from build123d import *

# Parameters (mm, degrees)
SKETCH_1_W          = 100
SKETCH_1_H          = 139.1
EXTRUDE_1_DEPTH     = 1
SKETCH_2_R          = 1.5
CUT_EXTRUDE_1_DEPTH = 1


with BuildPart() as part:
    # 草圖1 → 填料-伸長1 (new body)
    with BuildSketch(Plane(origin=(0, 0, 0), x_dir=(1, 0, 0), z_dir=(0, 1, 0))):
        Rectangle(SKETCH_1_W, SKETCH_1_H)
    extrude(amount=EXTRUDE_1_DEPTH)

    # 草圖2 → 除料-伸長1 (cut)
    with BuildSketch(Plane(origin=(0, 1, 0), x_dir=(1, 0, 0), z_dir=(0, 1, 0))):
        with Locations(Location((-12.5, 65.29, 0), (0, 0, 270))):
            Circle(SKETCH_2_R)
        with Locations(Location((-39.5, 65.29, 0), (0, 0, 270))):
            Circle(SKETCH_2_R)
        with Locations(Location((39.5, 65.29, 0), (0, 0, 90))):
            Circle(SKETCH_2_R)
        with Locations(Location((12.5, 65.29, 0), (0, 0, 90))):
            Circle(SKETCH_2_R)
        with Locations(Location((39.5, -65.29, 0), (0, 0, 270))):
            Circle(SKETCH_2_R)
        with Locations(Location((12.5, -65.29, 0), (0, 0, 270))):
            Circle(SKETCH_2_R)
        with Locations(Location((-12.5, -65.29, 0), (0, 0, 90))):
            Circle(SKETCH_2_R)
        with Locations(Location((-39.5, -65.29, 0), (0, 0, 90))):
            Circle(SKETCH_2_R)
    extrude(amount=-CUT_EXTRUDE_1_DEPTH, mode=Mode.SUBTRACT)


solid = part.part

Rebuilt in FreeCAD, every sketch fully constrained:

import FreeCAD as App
import Part
import Sketcher
from FreeCAD import Vector


def add_polygon(sketch, points):
    """Adds a closed chain of lines whose ends are joined by coincident constraints."""
    first, n = sketch.GeometryCount, len(points)
    for a, b in zip(points, points[1:] + points[:1]):
        sketch.addGeometry(Part.LineSegment(App.Vector(*a, 0), App.Vector(*b, 0)), False)
    for i in range(n):
        sketch.addConstraint(Sketcher.Constraint("Coincident", first + i, 2, first + (i + 1) % n, 1))

doc = App.newDocument("Part")
body = doc.addObject("PartDesign::Body", "Body")

# Sketch on XZ plane
sketch1 = body.newObject("Sketcher::SketchObject", "Sketch")
sketch1.AttachmentSupport = (doc.getObject("XZ_Plane"), [""])
sketch1.MapMode = "FlatFace"
add_polygon(sketch1, [(-50, -69.55), (-50, 69.55), (50, 69.55), (50, -69.55)])  # lines 0-3
sketch1.addConstraint([
    Sketcher.Constraint("Vertical", 0),
    Sketcher.Constraint("Horizontal", 1),
    Sketcher.Constraint("Vertical", 2),
    Sketcher.Constraint("Horizontal", 3),
    Sketcher.Constraint("Symmetric", 0, 2, 2, 2, -1, 1),
    Sketcher.Constraint("DistanceX", 1, 1, 1, 2, 100.0),
    Sketcher.Constraint("DistanceY", 0, 1, 0, 2, 139.1),
])
pad1 = body.newObject("PartDesign::Pad", "Pad")
pad1.Profile = sketch1
pad1.Length = 1
pad1.Reversed = True

# Sketch on XZ plane
sketch2 = body.newObject("Sketcher::SketchObject", "Sketch001")
sketch2.AttachmentSupport = (doc.getObject("XZ_Plane"), [""])
sketch2.MapMode = "FlatFace"
sketch2.AttachmentOffset = App.Placement(Vector(0, 0, -1), App.Rotation())
sketch2.addGeometry([
    Part.Circle(Vector(-12.5, -65.29, 0), Vector(0, 0, 1), 1.5),  # 0
    Part.Circle(Vector(-39.5, -65.29, 0), Vector(0, 0, 1), 1.5),  # 1
    Part.Circle(Vector(39.5, -65.29, 0), Vector(0, 0, 1), 1.5),  # 2
    Part.Circle(Vector(12.5, -65.29, 0), Vector(0, 0, 1), 1.5),  # 3
    Part.Circle(Vector(39.5, 65.29, 0), Vector(0, 0, 1), 1.5),  # 4
    Part.Circle(Vector(12.5, 65.29, 0), Vector(0, 0, 1), 1.5),  # 5
    Part.Circle(Vector(-12.5, 65.29, 0), Vector(0, 0, 1), 1.5),  # 6
    Part.Circle(Vector(-39.5, 65.29, 0), Vector(0, 0, 1), 1.5),  # 7
], False)
sketch2.addConstraint([
    Sketcher.Constraint("Equal", 0, 1),
    Sketcher.Constraint("Equal", 1, 2),
    Sketcher.Constraint("Equal", 2, 3),
    Sketcher.Constraint("Equal", 3, 4),
    Sketcher.Constraint("Equal", 4, 5),
    Sketcher.Constraint("Equal", 5, 6),
    Sketcher.Constraint("Equal", 6, 7),
    Sketcher.Constraint("Symmetric", 1, 3, 4, 3, -1, 1),
    Sketcher.Constraint("Symmetric", 0, 3, 5, 3, -1, 1),
    Sketcher.Constraint("Symmetric", 3, 3, 6, 3, -1, 1),
    Sketcher.Constraint("Symmetric", 2, 3, 7, 3, -1, 1),
    Sketcher.Constraint("Symmetric", 1, 3, 2, 3, -2),
    Sketcher.Constraint("Symmetric", 0, 3, 3, 3, -2),
    Sketcher.Constraint("Horizontal", 0, 3, 1, 3),
    Sketcher.Constraint("Diameter", 0, 3.0),
    Sketcher.Constraint("DistanceX", 1, 3, 0, 3, 27.0),
    Sketcher.Constraint("DistanceX", 0, 3, 2, 3, 52.0),
    Sketcher.Constraint("DistanceY", 0, 3, -1, 1, 65.29),
])
pocket1 = body.newObject("PartDesign::Pocket", "Pocket")
pocket1.Profile = sketch2
pocket1.Length = 1
pocket1.Reversed = True

doc.recompute()
